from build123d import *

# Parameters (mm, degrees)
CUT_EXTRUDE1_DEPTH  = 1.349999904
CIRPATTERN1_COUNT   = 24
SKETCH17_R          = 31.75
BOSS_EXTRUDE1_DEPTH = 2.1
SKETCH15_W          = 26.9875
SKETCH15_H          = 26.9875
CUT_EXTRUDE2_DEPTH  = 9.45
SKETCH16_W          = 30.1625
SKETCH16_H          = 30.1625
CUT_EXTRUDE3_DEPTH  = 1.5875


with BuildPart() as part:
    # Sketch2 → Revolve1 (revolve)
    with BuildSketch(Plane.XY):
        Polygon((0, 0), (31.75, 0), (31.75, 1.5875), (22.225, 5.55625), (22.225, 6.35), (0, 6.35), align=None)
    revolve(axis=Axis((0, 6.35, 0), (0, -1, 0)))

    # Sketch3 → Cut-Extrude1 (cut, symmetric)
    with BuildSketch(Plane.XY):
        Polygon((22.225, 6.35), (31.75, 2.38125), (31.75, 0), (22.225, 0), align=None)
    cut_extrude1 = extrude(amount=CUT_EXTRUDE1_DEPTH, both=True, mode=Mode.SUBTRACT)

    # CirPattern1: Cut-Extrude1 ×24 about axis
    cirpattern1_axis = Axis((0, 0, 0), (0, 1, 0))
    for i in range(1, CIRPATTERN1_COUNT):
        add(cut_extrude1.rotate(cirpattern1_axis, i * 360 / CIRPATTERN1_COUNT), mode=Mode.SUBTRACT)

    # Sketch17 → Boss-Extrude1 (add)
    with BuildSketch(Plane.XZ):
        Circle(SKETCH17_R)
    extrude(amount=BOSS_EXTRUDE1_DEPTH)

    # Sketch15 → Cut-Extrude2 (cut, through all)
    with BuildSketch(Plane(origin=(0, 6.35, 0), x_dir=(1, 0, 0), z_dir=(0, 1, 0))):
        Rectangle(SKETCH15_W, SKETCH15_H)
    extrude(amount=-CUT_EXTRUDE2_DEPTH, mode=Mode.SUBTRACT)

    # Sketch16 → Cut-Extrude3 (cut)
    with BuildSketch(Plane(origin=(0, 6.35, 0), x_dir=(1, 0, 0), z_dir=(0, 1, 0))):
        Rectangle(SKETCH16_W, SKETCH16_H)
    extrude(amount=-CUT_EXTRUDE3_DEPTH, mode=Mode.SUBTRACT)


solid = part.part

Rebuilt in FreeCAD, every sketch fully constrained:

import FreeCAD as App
import Part
import Sketcher

V = App.Vector
Q = App.Units.Quantity

doc = App.newDocument("Part")
body = doc.addObject("PartDesign::Body", "Body")

# Sketch on XY plane
sketch1 = doc.addObject("Sketcher::SketchObject", "Sketch")
body.addObject(sketch1)
sketch1.AttachmentSupport = (doc.XY_Plane, [""])
sketch1.MapMode = "FlatFace"
sketch1.addGeometry([
    Part.LineSegment(V(0, 0, 0), V(31.75, 0, 0)),  # 0
    Part.LineSegment(V(31.75, 0, 0), V(31.75, 1.5875, 0)),  # 1
    Part.LineSegment(V(31.75, 1.5875, 0), V(22.225, 5.55625, 0)),  # 2
    Part.LineSegment(V(22.225, 5.55625, 0), V(22.225, 6.35, 0)),  # 3
    Part.LineSegment(V(22.225, 6.35, 0), V(0, 6.35, 0)),  # 4
    Part.LineSegment(V(0, 6.35, 0), V(0, 0, 0)),  # 5
], False)
sketch1.addConstraint([
    Sketcher.Constraint("Coincident", 0, 2, 1, 1),
    Sketcher.Constraint("Coincident", 1, 2, 2, 1),
    Sketcher.Constraint("Coincident", 2, 2, 3, 1),
    Sketcher.Constraint("Coincident", 3, 2, 4, 1),
    Sketcher.Constraint("Coincident", 4, 2, 5, 1),
    Sketcher.Constraint("Coincident", 5, 2, 0, 1),
    Sketcher.Constraint("Horizontal", 0),
    Sketcher.Constraint("Vertical", 1),
    Sketcher.Constraint("Vertical", 3),
    Sketcher.Constraint("Horizontal", 4),
    Sketcher.Constraint("Vertical", 5),
    Sketcher.Constraint("Coincident", 5, 2, -1, 1),
    Sketcher.Constraint("DistanceX", 0, 1, 0, 2, Q("1.25 in")),
    Sketcher.Constraint("DistanceY", 5, 2, 5, 1, Q("0.25 in")),
    Sketcher.Constraint("DistanceX", 4, 2, 4, 1, Q("0.875 in")),
    Sketcher.Constraint("DistanceY", 1, 1, 1, 2, Q("0.0625 in")),
    Sketcher.Constraint("DistanceY", 3, 1, 3, 2, Q("0.03125 in")),
])
revolution = doc.addObject("PartDesign::Revolution", "Revolution")
body.addObject(revolution)
revolution.Profile = sketch1
revolution.ReferenceAxis = (sketch1, ["V_Axis"])
revolution.Angle = 360

# Sketch on XY plane
sketch2 = doc.addObject("Sketcher::SketchObject", "Sketch001")
body.addObject(sketch2)
sketch2.AttachmentSupport = (doc.XY_Plane, [""])
sketch2.MapMode = "FlatFace"
sketch2.addGeometry([
    Part.LineSegment(V(31.75, 2.38125, 0), V(22.225, 6.35, 0)),
    Part.LineSegment(V(22.225, 6.35, 0), V(22.225, 0, 0)),
    Part.LineSegment(V(22.225, 0, 0), V(31.75, 0, 0)),
    Part.LineSegment(V(31.75, 0, 0), V(31.75, 2.38125, 0)),
], False)
sketch2.addConstraint([
    Sketcher.Constraint("Coincident", 0, 2, 1, 1),
    Sketcher.Constraint("Coincident", 1, 2, 2, 1),
    Sketcher.Constraint("Coincident", 2, 2, 3, 1),
    Sketcher.Constraint("Coincident", 3, 2, 0, 1),
    Sketcher.Constraint("Vertical", 1),
    Sketcher.Constraint("Horizontal", 2),
    Sketcher.Constraint("Vertical", 3),
    Sketcher.Constraint("PointOnObject", 1, 2, -1),
    Sketcher.Constraint("DistanceY", 1, 2, 1, 1, Q("0.25 in")),
    Sketcher.Constraint("DistanceX", 2, 1, 2, 2, Q("0.375 in")),
    Sketcher.Constraint("DistanceY", 3, 1, 3, 2, Q("0.09375 in")),
    Sketcher.Constraint("DistanceX", -1, 1, 2, 2, Q("1.25 in")),
])
pocket1 = doc.addObject("PartDesign::Pocket", "Pocket")
body.addObject(pocket1)
pocket1.Profile = sketch2
pocket1.Length = 2.7
pocket1.Midplane = True
doc.recompute()

polarpattern = doc.addObject("PartDesign::PolarPattern", "PolarPattern")
body.addObject(polarpattern)
polarpattern.Originals = [pocket1]
polarpattern.Axis = (doc.Y_Axis, [""])
polarpattern.Angle = 360
polarpattern.Occurrences = 24
body.Tip = polarpattern

# Sketch on XZ plane
sketch3 = doc.addObject("Sketcher::SketchObject", "Sketch002")
body.addObject(sketch3)
sketch3.AttachmentSupport = (doc.XZ_Plane, [""])
sketch3.MapMode = "FlatFace"
sketch3.addGeometry(Part.Circle(V(0, 0, 0), V(0, 0, 1), 31.75), False)
sketch3.addConstraint([
    Sketcher.Constraint("Coincident", 0, 3, -1, 1),
    Sketcher.Constraint("Diameter", 0, Q("2.5 in")),
])
pad1 = doc.addObject("PartDesign::Pad", "Pad")
body.addObject(pad1)
pad1.Profile = sketch3
pad1.Length = 2.1

# Sketch on XZ plane
sketch4 = doc.addObject("Sketcher::SketchObject", "Sketch003")
body.addObject(sketch4)
sketch4.AttachmentSupport = (doc.XZ_Plane, [""])
sketch4.MapMode = "FlatFace"
sketch4.AttachmentOffset = App.Placement(V(0, 0, -0.25 * 25.4), App.Rotation())
sketch4.addGeometry([
    Part.LineSegment(V(-13.49375, -13.49375, 0), V(-13.49375, 13.49375, 0)),
    Part.LineSegment(V(-13.49375, 13.49375, 0), V(13.49375, 13.49375, 0)),
    Part.LineSegment(V(13.49375, 13.49375, 0), V(13.49375, -13.49375, 0)),
    Part.LineSegment(V(13.49375, -13.49375, 0), V(-13.49375, -13.49375, 0)),
], False)
sketch4.addConstraint([
    Sketcher.Constraint("Coincident", 0, 2, 1, 1),
    Sketcher.Constraint("Coincident", 1, 2, 2, 1),
    Sketcher.Constraint("Coincident", 2, 2, 3, 1),
    Sketcher.Constraint("Coincident", 3, 2, 0, 1),
    Sketcher.Constraint("Vertical", 0),
    Sketcher.Constraint("Horizontal", 1),
    Sketcher.Constraint("Vertical", 2),
    Sketcher.Constraint("Horizontal", 3),
    Sketcher.Constraint("Symmetric", 0, 2, 2, 2, -1, 1),
    Sketcher.Constraint("Equal", 3, 0),
    Sketcher.Constraint("DistanceX", 1, 1, 1, 2, Q("1.0625 in")),
])
pocket2 = doc.addObject("PartDesign::Pocket", "Pocket001")
body.addObject(pocket2)
pocket2.Profile = sketch4
pocket2.Type = "ThroughAll"
pocket2.Reversed = True

# Sketch on XZ plane
sketch5 = doc.addObject("Sketcher::SketchObject", "Sketch004")
body.addObject(sketch5)
sketch5.AttachmentSupport = (doc.XZ_Plane, [""])
sketch5.MapMode = "FlatFace"
sketch5.AttachmentOffset = App.Placement(V(0, 0, -0.25 * 25.4), App.Rotation())
sketch5.addGeometry([
    Part.LineSegment(V(-15.08125, -15.08125, 0), V(-15.08125, 15.08125, 0)),
    Part.LineSegment(V(-15.08125, 15.08125, 0), V(15.08125, 15.08125, 0)),
    Part.LineSegment(V(15.08125, 15.08125, 0), V(15.08125, -15.08125, 0)),
    Part.LineSegment(V(15.08125, -15.08125, 0), V(-15.08125, -15.08125, 0)),
], False)
sketch5.addConstraint([
    Sketcher.Constraint("Coincident", 0, 2, 1, 1),
    Sketcher.Constraint("Coincident", 1, 2, 2, 1),
    Sketcher.Constraint("Coincident", 2, 2, 3, 1),
    Sketcher.Constraint("Coincident", 3, 2, 0, 1),
    Sketcher.Constraint("Vertical", 0),
    Sketcher.Constraint("Horizontal", 1),
    Sketcher.Constraint("Vertical", 2),
    Sketcher.Constraint("Horizontal", 3),
    Sketcher.Constraint("Symmetric", 0, 2, 2, 2, -1, 1),
    Sketcher.Constraint("Equal", 3, 0),
    Sketcher.Constraint("DistanceX", 1, 1, 1, 2, Q("1.1875 in")),
])
pocket3 = doc.addObject("PartDesign::Pocket", "Pocket002")
body.addObject(pocket3)
pocket3.Profile = sketch5
pocket3.Length = Q("0.0625 in")
pocket3.Reversed = True

doc.recompute()
